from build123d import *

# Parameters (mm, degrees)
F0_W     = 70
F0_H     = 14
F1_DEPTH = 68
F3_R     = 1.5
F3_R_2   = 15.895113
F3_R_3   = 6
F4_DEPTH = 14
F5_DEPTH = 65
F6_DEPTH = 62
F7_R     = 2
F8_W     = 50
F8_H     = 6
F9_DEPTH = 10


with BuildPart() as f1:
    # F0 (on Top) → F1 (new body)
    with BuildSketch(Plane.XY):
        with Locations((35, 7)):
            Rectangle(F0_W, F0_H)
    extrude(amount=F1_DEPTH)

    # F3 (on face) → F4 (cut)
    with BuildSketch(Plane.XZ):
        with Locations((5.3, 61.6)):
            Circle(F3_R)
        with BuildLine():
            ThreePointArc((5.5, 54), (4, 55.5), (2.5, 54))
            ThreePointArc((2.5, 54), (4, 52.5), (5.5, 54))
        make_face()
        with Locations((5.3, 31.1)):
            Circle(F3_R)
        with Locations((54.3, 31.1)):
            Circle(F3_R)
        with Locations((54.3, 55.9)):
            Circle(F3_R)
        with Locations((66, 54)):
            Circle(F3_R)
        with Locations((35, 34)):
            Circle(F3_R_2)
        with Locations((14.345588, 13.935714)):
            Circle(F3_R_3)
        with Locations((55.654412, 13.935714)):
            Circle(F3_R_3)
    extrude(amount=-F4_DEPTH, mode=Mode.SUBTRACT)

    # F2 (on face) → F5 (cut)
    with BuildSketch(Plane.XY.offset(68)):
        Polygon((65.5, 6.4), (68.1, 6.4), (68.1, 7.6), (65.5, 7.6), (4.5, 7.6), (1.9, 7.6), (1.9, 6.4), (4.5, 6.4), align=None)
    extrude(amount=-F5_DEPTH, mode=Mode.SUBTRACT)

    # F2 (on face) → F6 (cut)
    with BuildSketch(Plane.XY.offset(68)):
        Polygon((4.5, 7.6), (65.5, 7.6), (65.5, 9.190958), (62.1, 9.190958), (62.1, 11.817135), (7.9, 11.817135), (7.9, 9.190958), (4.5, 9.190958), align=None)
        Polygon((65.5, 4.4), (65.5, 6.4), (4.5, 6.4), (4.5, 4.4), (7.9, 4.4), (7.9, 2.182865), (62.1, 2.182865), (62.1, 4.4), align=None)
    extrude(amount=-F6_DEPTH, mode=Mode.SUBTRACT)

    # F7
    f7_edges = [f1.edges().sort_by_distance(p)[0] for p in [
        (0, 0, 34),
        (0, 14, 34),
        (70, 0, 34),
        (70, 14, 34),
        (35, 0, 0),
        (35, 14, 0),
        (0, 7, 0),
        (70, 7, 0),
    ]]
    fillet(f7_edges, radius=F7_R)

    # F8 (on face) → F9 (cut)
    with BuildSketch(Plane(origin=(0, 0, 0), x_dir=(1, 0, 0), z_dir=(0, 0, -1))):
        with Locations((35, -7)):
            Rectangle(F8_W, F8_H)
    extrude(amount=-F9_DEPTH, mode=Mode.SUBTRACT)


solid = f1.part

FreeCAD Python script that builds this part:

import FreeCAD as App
import Part
import Sketcher
Q = App.Units.Quantity


def edges_at(feature, points):
    """Names of the edges that pass closest to the given points."""
    edges = feature.Shape.Edges
    near = lambda p: min(range(len(edges)), key=lambda i: edges[i].distToShape(Part.Vertex(*p))[0])
    return sorted({f"Edge{near(p) + 1}" for p in points})

doc = App.newDocument("Part")
body = doc.addObject("PartDesign::Body", "Body")

# Sketch on XY plane
sketch1 = body.newObject("Sketcher::SketchObject", "Sketch")
sketch1.AttachmentSupport = (doc.getObject("XY_Plane"), [""])
sketch1.MapMode = "FlatFace"
sketch1.addGeometry([
    Part.LineSegment(App.Vector(0, 14, 0), App.Vector(0, 0, 0)),
    Part.LineSegment(App.Vector(0, 0, 0), App.Vector(70, 0, 0)),
    Part.LineSegment(App.Vector(70, 0, 0), App.Vector(70, 14, 0)),
    Part.LineSegment(App.Vector(70, 14, 0), App.Vector(0, 14, 0)),
], False)
sketch1.addConstraint([
    Sketcher.Constraint("Coincident", 0, 2, 1, 1),
    Sketcher.Constraint("Coincident", 1, 2, 2, 1),
    Sketcher.Constraint("Coincident", 2, 2, 3, 1),
    Sketcher.Constraint("Coincident", 3, 2, 0, 1),
    Sketcher.Constraint("Vertical", 0),
    Sketcher.Constraint("Horizontal", 1),
    Sketcher.Constraint("Vertical", 2),
    Sketcher.Constraint("Horizontal", 3),
    Sketcher.Constraint("Coincident", 0, 2, -1, 1),
    Sketcher.Constraint("DistanceX", 1, 1, 1, 2, Q("70 mm")),
    Sketcher.Constraint("DistanceY", 0, 2, 0, 1, Q("14 mm")),
])
pad1 = body.newObject("PartDesign::Pad", "Pad")
pad1.Profile = sketch1
pad1.Length = 68

# Sketch on XZ plane
sketch2 = body.newObject("Sketcher::SketchObject", "Sketch001")
sketch2.AttachmentSupport = (doc.getObject("XZ_Plane"), [""])
sketch2.MapMode = "FlatFace"
sketch2.addGeometry([
    Part.Circle(App.Vector(5.3, 61.6, 0), App.Vector(0, 0, 1), 1.5),  # 0
    Part.Circle(App.Vector(4, 54, 0), App.Vector(0, 0, 1), 1.5),  # 1
    Part.Circle(App.Vector(5.3, 31.1, 0), App.Vector(0, 0, 1), 1.5),  # 2
    Part.Circle(App.Vector(54.3, 31.1, 0), App.Vector(0, 0, 1), 1.5),  # 3
    Part.Circle(App.Vector(54.3, 55.9, 0), App.Vector(0, 0, 1), 1.5),  # 4
    Part.Circle(App.Vector(66, 54, 0), App.Vector(0, 0, 1), 1.5),  # 5
    Part.Circle(App.Vector(35, 34, 0), App.Vector(0, 0, 1), 15.9),  # 6
    Part.Circle(App.Vector(14.3, 13.9, 0), App.Vector(0, 0, 1), 6),  # 7
    Part.Circle(App.Vector(55.7, 13.9, 0), App.Vector(0, 0, 1), 6),  # 8
], False)
sketch2.addConstraint([
    Sketcher.Constraint("Equal", 0, 1),
    Sketcher.Constraint("Equal", 1, 2),
    Sketcher.Constraint("Equal", 2, 3),
    Sketcher.Constraint("Equal", 3, 4),
    Sketcher.Constraint("Equal", 4, 5),
    Sketcher.Constraint("Equal", 7, 8),
    Sketcher.Constraint("Horizontal", 2, 3, 3, 3),
    Sketcher.Constraint("Horizontal", 1, 3, 5, 3),
    Sketcher.Constraint("Horizontal", 7, 3, 8, 3),
    Sketcher.Constraint("Vertical", 0, 3, 2, 3),
    Sketcher.Constraint("Vertical", 3, 3, 4, 3),
    Sketcher.Constraint("Diameter", 0, Q("3 mm")),
    Sketcher.Constraint("Diameter", 7, Q("12 mm")),
    Sketcher.Constraint("DistanceX", -1, 1, 1, 3, Q("4 mm")),
    Sketcher.Constraint("DistanceY", -1, 1, 1, 3, Q("54 mm")),
    Sketcher.Constraint("DistanceX", -1, 1, 5, 3, Q("66 mm")),
    Sketcher.Constraint("DistanceX", -1, 1, 6, 3, Q("35 mm")),
    Sketcher.Constraint("DistanceY", -1, 1, 6, 3, Q("34 mm")),
    Sketcher.Constraint("DistanceX", 2, 3, 3, 3, Q("49 mm")),
    Sketcher.Constraint("DistanceX", -1, 1, 0, 3, Q("5.3 mm")),
    Sketcher.Constraint("DistanceY", -1, 1, 0, 3, Q("61.6 mm")),
    Sketcher.Constraint("DistanceY", -1, 1, 2, 3, Q("31.1 mm")),
    Sketcher.Constraint("DistanceY", -1, 1, 4, 3, Q("55.9 mm")),
    Sketcher.Constraint("Diameter", 6, Q("31.790226 mm")),
    Sketcher.Constraint("DistanceX", 7, 3, 3, 3, Q("39.954412 mm")),
    Sketcher.Constraint("DistanceY", -1, 1, 7, 3, Q("13.935714 mm")),
    Sketcher.Constraint("DistanceX", -1, 1, 8, 3, Q("55.654412 mm")),
])
pocket1 = body.newObject("PartDesign::Pocket", "Pocket")
pocket1.Profile = sketch2
pocket1.Length = 14

# Sketch on XY plane
sketch3 = body.newObject("Sketcher::SketchObject", "Sketch002")
sketch3.AttachmentSupport = (doc.getObject("XY_Plane"), [""])
sketch3.MapMode = "FlatFace"
sketch3.AttachmentOffset = App.Placement(App.Vector(0, 0, 68), App.Rotation())
sketch3.addGeometry([
    Part.LineSegment(App.Vector(68.1, 6.4, 0), App.Vector(68.1, 7.6, 0)),
    Part.LineSegment(App.Vector(68.1, 7.6, 0), App.Vector(1.9, 7.6, 0)),
    Part.LineSegment(App.Vector(1.9, 7.6, 0), App.Vector(1.9, 6.4, 0)),
    Part.LineSegment(App.Vector(1.9, 6.4, 0), App.Vector(68.1, 6.4, 0)),
], False)
sketch3.addConstraint([
    Sketcher.Constraint("Coincident", 0, 2, 1, 1),
    Sketcher.Constraint("Coincident", 1, 2, 2, 1),
    Sketcher.Constraint("Coincident", 2, 2, 3, 1),
    Sketcher.Constraint("Coincident", 3, 2, 0, 1),
    Sketcher.Constraint("Vertical", 0),
    Sketcher.Constraint("Horizontal", 1),
    Sketcher.Constraint("Vertical", 2),
    Sketcher.Constraint("Horizontal", 3),
    Sketcher.Constraint("DistanceX", 1, 2, 1, 1, Q("66.2 mm")),
    Sketcher.Constraint("DistanceY", 0, 1, 0, 2, Q("1.2 mm")),
    Sketcher.Constraint("DistanceX", -1, 1, 0, 2, Q("68.1 mm")),
    Sketcher.Constraint("DistanceY", -1, 1, 0, 2, Q("7.6 mm")),
])
pocket2 = body.newObject("PartDesign::Pocket", "Pocket001")
pocket2.Profile = sketch3
pocket2.Length = 65

# Sketch on XY plane
sketch4 = body.newObject("Sketcher::SketchObject", "Sketch003")
sketch4.AttachmentSupport = (doc.getObject("XY_Plane"), [""])
sketch4.MapMode = "FlatFace"
sketch4.AttachmentOffset = App.Placement(App.Vector(0, 0, 68), App.Rotation())
sketch4.addGeometry([
    Part.LineSegment(App.Vector(4.5, 7.6, 0), App.Vector(65.5, 7.6, 0)),  # 0
    Part.LineSegment(App.Vector(65.5, 7.6, 0), App.Vector(65.5, 9.2, 0)),  # 1
    Part.LineSegment(App.Vector(65.5, 9.2, 0), App.Vector(62.1, 9.2, 0)),  # 2
    Part.LineSegment(App.Vector(62.1, 9.2, 0), App.Vector(62.1, 11.8, 0)),  # 3
    Part.LineSegment(App.Vector(62.1, 11.8, 0), App.Vector(7.9, 11.8, 0)),  # 4
    Part.LineSegment(App.Vector(7.9, 11.8, 0), App.Vector(7.9, 9.2, 0)),  # 5
    Part.LineSegment(App.Vector(7.9, 9.2, 0), App.Vector(4.5, 9.2, 0)),  # 6
    Part.LineSegment(App.Vector(4.5, 9.2, 0), App.Vector(4.5, 7.6, 0)),  # 7
    Part.LineSegment(App.Vector(65.5, 4.4, 0), App.Vector(65.5, 6.4, 0)),  # 8
    Part.LineSegment(App.Vector(65.5, 6.4, 0), App.Vector(4.5, 6.4, 0)),  # 9
    Part.LineSegment(App.Vector(4.5, 6.4, 0), App.Vector(4.5, 4.4, 0)),  # 10
    Part.LineSegment(App.Vector(4.5, 4.4, 0), App.Vector(7.9, 4.4, 0)),  # 11
    Part.LineSegment(App.Vector(7.9, 4.4, 0), App.Vector(7.9, 2.2, 0)),  # 12
    Part.LineSegment(App.Vector(7.9, 2.2, 0), App.Vector(62.1, 2.2, 0)),  # 13
    Part.LineSegment(App.Vector(62.1, 2.2, 0), App.Vector(62.1, 4.4, 0)),  # 14
    Part.LineSegment(App.Vector(62.1, 4.4, 0), App.Vector(65.5, 4.4, 0)),  # 15
], False)
sketch4.addConstraint([
    Sketcher.Constraint("Coincident", 0, 2, 1, 1),
    Sketcher.Constraint("Coincident", 1, 2, 2, 1),
    Sketcher.Constraint("Coincident", 2, 2, 3, 1),
    Sketcher.Constraint("Coincident", 3, 2, 4, 1),
    Sketcher.Constraint("Coincident", 4, 2, 5, 1),
    Sketcher.Constraint("Coincident", 5, 2, 6, 1),
    Sketcher.Constraint("Coincident", 6, 2, 7, 1),
    Sketcher.Constraint("Coincident", 7, 2, 0, 1),
    Sketcher.Constraint("Coincident", 8, 2, 9, 1),
    Sketcher.Constraint("Coincident", 9, 2, 10, 1),
    Sketcher.Constraint("Coincident", 10, 2, 11, 1),
    Sketcher.Constraint("Coincident", 11, 2, 12, 1),
    Sketcher.Constraint("Coincident", 12, 2, 13, 1),
    Sketcher.Constraint("Coincident", 13, 2, 14, 1),
    Sketcher.Constraint("Coincident", 14, 2, 15, 1),
    Sketcher.Constraint("Coincident", 15, 2, 8, 1),
    Sketcher.Constraint("Horizontal", 0),
    Sketcher.Constraint("Vertical", 1),
    Sketcher.Constraint("Horizontal", 2),
    Sketcher.Constraint("Vertical", 3),
    Sketcher.Constraint("Horizontal", 4),
    Sketcher.Constraint("Vertical", 5),
    Sketcher.Constraint("Horizontal", 6),
    Sketcher.Constraint("Vertical", 7),
    Sketcher.Constraint("Vertical", 8),
    Sketcher.Constraint("Horizontal", 9),
    Sketcher.Constraint("Vertical", 10),
    Sketcher.Constraint("Horizontal", 11),
    Sketcher.Constraint("Vertical", 12),
    Sketcher.Constraint("Horizontal", 13),
    Sketcher.Constraint("Vertical", 14),
    Sketcher.Constraint("Horizontal", 15),
    Sketcher.Constraint("Horizontal", 2, 2, 5, 2),
    Sketcher.Constraint("Horizontal", 11, 2, 14, 2),
    Sketcher.Constraint("Vertical", 1, 2, 8, 2),
    Sketcher.Constraint("Vertical", 7, 2, 9, 2),
    Sketcher.Constraint("Vertical", 5, 2, 11, 2),
    Sketcher.Constraint("Vertical", 3, 2, 13, 2),
    Sketcher.Constraint("Equal", 2, 6),
    Sketcher.Constraint("DistanceX", 0, 1, 0, 2, Q("61 mm")),
    Sketcher.Constraint("DistanceY", 8, 1, 8, 2, Q("2 mm")),
    Sketcher.Constraint("DistanceX", 2, 2, 2, 1, Q("3.4 mm")),
    Sketcher.Constraint("DistanceX", -1, 1, 0, 2, Q("65.5 mm")),
    Sketcher.Constraint("DistanceY", -1, 1, 0, 2, Q("7.6 mm")),
    Sketcher.Constraint("DistanceY", -1, 1, 8, 2, Q("6.4 mm")),
    Sketcher.Constraint("DistanceY", 1, 1, 1, 2, Q("1.590958 mm")),
    Sketcher.Constraint("DistanceY", 3, 1, 3, 2, Q("2.626177 mm")),
    Sketcher.Constraint("DistanceY", 12, 2, 12, 1, Q("2.217135 mm")),
])
pocket3 = body.newObject("PartDesign::Pocket", "Pocket002")
pocket3.Profile = sketch4
pocket3.Length = 62
doc.recompute()

fillet = body.newObject("PartDesign::Fillet", "Fillet")
fillet.Base = (pocket3, edges_at(pocket3, [
    (0, 0, 34),
    (0, 14, 34),
    (70, 0, 34),
    (70, 14, 34),
    (35, 0, 0),
    (35, 14, 0),
    (0, 7, 0),
    (70, 7, 0),
]))
fillet.Radius = 2

# Sketch on XY plane
sketch5 = body.newObject("Sketcher::SketchObject", "Sketch004")
sketch5.AttachmentSupport = (doc.getObject("XY_Plane"), [""])
sketch5.MapMode = "FlatFace"
sketch5.addGeometry([
    Part.LineSegment(App.Vector(10, 4, 0), App.Vector(10, 10, 0)),
    Part.LineSegment(App.Vector(10, 10, 0), App.Vector(60, 10, 0)),
    Part.LineSegment(App.Vector(60, 10, 0), App.Vector(60, 4, 0)),
    Part.LineSegment(App.Vector(60, 4, 0), App.Vector(10, 4, 0)),
], False)
sketch5.addConstraint([
    Sketcher.Constraint("Coincident", 0, 2, 1, 1),
    Sketcher.Constraint("Coincident", 1, 2, 2, 1),
    Sketcher.Constraint("Coincident", 2, 2, 3, 1),
    Sketcher.Constraint("Coincident", 3, 2, 0, 1),
    Sketcher.Constraint("Vertical", 0),
    Sketcher.Constraint("Horizontal", 1),
    Sketcher.Constraint("Vertical", 2),
    Sketcher.Constraint("Horizontal", 3),
    Sketcher.Constraint("DistanceX", 1, 1, 1, 2, Q("50 mm")),
    Sketcher.Constraint("DistanceY", 0, 1, 0, 2, Q("6 mm")),
    Sketcher.Constraint("DistanceX", -1, 1, 0, 2, Q("10 mm")),
    Sketcher.Constraint("DistanceY", -1, 1, 0, 2, Q("10 mm")),
])
pocket4 = body.newObject("PartDesign::Pocket", "Pocket003")
pocket4.Profile = sketch5
pocket4.Length = 10
pocket4.Reversed = True

doc.recompute()
